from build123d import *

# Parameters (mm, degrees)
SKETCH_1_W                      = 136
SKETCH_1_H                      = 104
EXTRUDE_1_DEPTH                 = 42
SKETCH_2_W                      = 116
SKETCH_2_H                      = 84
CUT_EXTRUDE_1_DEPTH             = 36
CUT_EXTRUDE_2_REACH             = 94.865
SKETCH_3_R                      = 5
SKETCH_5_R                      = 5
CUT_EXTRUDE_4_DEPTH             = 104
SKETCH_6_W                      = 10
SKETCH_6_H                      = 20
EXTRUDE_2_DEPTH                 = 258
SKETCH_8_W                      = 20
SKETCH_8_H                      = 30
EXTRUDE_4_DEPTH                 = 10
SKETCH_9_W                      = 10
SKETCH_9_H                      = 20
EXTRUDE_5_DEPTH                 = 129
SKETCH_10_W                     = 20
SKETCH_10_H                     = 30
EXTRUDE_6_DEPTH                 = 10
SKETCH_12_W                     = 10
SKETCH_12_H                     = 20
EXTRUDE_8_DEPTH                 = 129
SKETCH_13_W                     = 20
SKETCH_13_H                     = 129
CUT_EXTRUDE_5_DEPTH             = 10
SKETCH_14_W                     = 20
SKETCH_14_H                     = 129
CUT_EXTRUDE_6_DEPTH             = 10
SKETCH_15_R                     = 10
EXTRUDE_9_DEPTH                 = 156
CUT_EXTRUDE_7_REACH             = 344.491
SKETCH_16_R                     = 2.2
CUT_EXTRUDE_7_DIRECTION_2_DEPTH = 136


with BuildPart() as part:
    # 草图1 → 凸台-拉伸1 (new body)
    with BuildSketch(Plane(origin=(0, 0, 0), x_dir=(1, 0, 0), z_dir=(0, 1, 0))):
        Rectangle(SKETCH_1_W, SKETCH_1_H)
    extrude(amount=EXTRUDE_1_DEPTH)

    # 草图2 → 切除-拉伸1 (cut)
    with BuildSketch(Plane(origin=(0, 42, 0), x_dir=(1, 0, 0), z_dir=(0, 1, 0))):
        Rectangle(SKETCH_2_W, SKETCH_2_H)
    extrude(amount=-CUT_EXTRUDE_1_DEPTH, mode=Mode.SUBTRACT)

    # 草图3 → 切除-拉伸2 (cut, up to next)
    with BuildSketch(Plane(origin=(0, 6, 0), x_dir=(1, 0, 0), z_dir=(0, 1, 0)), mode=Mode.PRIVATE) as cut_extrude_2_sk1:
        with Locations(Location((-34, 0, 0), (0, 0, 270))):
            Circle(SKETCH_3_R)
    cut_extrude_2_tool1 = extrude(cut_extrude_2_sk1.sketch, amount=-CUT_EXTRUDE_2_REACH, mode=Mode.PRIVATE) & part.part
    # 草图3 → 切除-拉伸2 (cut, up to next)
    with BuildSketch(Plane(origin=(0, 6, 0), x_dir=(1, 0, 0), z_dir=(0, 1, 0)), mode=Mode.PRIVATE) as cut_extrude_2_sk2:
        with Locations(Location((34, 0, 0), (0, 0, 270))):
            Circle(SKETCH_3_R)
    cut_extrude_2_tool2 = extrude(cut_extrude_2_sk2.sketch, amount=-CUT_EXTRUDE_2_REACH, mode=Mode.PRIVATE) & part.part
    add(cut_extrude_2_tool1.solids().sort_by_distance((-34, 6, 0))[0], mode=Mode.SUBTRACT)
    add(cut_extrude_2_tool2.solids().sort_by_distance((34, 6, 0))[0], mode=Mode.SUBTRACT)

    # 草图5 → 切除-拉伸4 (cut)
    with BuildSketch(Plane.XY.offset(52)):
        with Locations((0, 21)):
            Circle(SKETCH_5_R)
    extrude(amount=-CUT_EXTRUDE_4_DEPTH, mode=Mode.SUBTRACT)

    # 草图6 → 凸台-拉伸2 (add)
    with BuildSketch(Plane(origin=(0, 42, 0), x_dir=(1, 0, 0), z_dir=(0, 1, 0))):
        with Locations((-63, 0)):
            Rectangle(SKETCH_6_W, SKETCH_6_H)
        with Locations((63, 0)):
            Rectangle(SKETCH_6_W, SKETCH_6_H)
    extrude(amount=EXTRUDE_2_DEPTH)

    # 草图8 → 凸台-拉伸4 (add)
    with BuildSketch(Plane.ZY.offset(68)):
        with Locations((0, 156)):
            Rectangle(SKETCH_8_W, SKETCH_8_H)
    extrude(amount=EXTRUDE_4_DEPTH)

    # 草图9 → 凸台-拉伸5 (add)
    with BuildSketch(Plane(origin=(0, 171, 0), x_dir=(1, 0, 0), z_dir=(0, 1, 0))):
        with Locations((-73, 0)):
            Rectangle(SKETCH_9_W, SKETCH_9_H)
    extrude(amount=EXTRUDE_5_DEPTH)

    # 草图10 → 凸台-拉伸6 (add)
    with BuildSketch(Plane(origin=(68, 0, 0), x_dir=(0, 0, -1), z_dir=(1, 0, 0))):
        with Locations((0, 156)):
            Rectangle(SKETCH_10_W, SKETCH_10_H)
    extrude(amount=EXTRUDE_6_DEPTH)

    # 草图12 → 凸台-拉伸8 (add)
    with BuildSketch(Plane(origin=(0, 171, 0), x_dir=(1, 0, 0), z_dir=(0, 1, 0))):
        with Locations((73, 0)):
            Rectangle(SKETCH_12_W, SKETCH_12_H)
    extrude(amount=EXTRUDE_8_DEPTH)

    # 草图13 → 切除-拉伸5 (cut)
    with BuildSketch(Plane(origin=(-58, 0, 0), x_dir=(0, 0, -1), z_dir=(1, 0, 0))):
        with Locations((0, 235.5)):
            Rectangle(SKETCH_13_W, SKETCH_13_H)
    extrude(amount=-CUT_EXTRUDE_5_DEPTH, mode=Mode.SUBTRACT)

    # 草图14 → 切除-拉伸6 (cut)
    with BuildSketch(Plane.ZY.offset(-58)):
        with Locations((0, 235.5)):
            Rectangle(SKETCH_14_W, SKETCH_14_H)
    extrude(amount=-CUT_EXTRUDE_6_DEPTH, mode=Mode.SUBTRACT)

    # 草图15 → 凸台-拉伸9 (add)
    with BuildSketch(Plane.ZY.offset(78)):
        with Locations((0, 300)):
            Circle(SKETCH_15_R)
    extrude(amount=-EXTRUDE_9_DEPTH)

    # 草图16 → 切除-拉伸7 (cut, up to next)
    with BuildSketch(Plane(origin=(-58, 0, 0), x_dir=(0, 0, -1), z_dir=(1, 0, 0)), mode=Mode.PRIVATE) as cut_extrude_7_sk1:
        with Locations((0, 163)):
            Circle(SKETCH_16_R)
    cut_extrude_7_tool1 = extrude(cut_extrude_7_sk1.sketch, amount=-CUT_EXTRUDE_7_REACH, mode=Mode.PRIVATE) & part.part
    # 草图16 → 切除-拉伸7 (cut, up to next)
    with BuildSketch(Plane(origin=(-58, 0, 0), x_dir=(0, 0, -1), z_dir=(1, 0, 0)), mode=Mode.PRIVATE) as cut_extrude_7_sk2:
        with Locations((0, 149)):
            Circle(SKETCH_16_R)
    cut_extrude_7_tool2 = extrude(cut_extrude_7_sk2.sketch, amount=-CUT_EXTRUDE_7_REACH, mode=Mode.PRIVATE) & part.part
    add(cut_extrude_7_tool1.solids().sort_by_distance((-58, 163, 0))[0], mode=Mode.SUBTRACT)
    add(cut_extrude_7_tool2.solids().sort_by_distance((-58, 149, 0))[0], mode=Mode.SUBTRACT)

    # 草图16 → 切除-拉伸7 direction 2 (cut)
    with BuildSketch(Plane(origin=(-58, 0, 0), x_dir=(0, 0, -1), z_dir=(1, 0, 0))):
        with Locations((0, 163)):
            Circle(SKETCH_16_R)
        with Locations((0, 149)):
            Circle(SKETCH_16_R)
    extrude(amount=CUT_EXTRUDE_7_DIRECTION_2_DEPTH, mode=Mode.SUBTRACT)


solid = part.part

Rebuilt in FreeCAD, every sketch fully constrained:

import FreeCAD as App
import Part
import Sketcher
Q = App.Units.Quantity


def add_polygon(sketch, points):
    """Adds a closed chain of lines whose ends are joined by coincident constraints."""
    first, n = sketch.GeometryCount, len(points)
    for a, b in zip(points, points[1:] + points[:1]):
        sketch.addGeometry(Part.LineSegment(App.Vector(*a, 0), App.Vector(*b, 0)), False)
    for i in range(n):
        sketch.addConstraint(Sketcher.Constraint("Coincident", first + i, 2, first + (i + 1) % n, 1))

doc = App.newDocument("Part")
params = doc.addObject("Spreadsheet::Sheet", "Params")
for row, (alias, value) in enumerate([
    ("sketch1_width", "136 mm"),
    ("sketch1_height", "104 mm"),
    ("pad1_length", "42 mm"),
    ("sketch2_width", "116 mm"),
    ("sketch2_height", "84 mm"),
    ("pocket1_length", "36 mm"),
    ("sketch3_diameter", "10 mm"),
    ("sketch4_diameter", "10 mm"),
    ("sketch5_diameter", "10 mm"),
    ("pocket4_length", "104 mm"),
    ("sketch6_width", "10 mm"),
    ("sketch6_height", "20 mm"),
    ("pad2_length", "258 mm"),
    ("sketch7_width", "30 mm"),
    ("sketch7_height", "20 mm"),
    ("pad3_length", "10 mm"),
    ("sketch8_width", "10 mm"),
    ("sketch8_height", "20 mm"),
    ("pad4_length", "129 mm"),
    ("sketch9_width", "30 mm"),
    ("sketch9_height", "20 mm"),
    ("pad5_length", "10 mm"),
    ("sketch10_width", "10 mm"),
    ("sketch10_height", "20 mm"),
    ("pad6_length", "129 mm"),
    ("sketch11_width", "129 mm"),
    ("sketch11_height", "20 mm"),
    ("pocket5_length", "10 mm"),
    ("sketch12_width", "129 mm"),
    ("sketch12_height", "20 mm"),
    ("pocket6_length", "10 mm"),
    ("sketch13_diameter", "20 mm"),
    ("pad7_length", "156 mm"),
    ("sketch14_diameter", "4.4 mm"),
    ("sketch15_diameter", "4.4 mm"),
    ("sketch16_diameter", "4.4 mm"),
    ("pocket9_length", "136 mm"),
], start=1):
    params.set(f"A{row}", alias)
    params.set(f"B{row}", "=" + value)
    params.setAlias(f"B{row}", alias)

body = doc.addObject("PartDesign::Body", "Body")

sketch1 = body.newObject("Sketcher::SketchObject", "Sketch")
sketch1.AttachmentSupport = (doc.getObject("XZ_Plane"), [""])
sketch1.MapMode = "FlatFace"
add_polygon(sketch1, [(-68, -52), (-68, 52), (68, 52), (68, -52)])
sketch1.addConstraint([
    Sketcher.Constraint("Vertical", 0),
    Sketcher.Constraint("Horizontal", 1),
    Sketcher.Constraint("Vertical", 2),
    Sketcher.Constraint("Horizontal", 3),
    Sketcher.Constraint("Symmetric", 0, 2, 2, 2, -1, 1),
    Sketcher.Constraint("DistanceX", 1, 1, 1, 2, Q("136 mm")),
    Sketcher.Constraint("DistanceY", 0, 1, 0, 2, Q("104 mm")),
])
sketch1.setExpression("Constraints[9]", "Params.sketch1_width")
sketch1.setExpression("Constraints[10]", "Params.sketch1_height")
pad1 = body.newObject("PartDesign::Pad", "Pad")
pad1.Profile = sketch1
pad1.setExpression("Length", "Params.pad1_length")
pad1.Reversed = True

sketch2 = body.newObject("Sketcher::SketchObject", "Sketch001")
sketch2.AttachmentSupport = (doc.getObject("XZ_Plane"), [""])
sketch2.MapMode = "FlatFace"
sketch2.AttachmentOffset = App.Placement(App.Vector(0, 0, -42), App.Rotation())
add_polygon(sketch2, [(-58, -42), (-58, 42), (58, 42), (58, -42)])
sketch2.addConstraint([
    Sketcher.Constraint("Vertical", 0),
    Sketcher.Constraint("Horizontal", 1),
    Sketcher.Constraint("Vertical", 2),
    Sketcher.Constraint("Horizontal", 3),
    Sketcher.Constraint("Symmetric", 0, 2, 2, 2, -1, 1),
    Sketcher.Constraint("DistanceX", 1, 1, 1, 2, Q("116 mm")),
    Sketcher.Constraint("DistanceY", 0, 1, 0, 2, Q("84 mm")),
])
sketch2.setExpression("Constraints[9]", "Params.sketch2_width")
sketch2.setExpression("Constraints[10]", "Params.sketch2_height")
pocket1 = body.newObject("PartDesign::Pocket", "Pocket")
pocket1.Profile = sketch2
pocket1.setExpression("Length", "Params.pocket1_length")
pocket1.Reversed = True

sketch3 = body.newObject("Sketcher::SketchObject", "Sketch002")
sketch3.AttachmentSupport = (doc.getObject("XZ_Plane"), [""])
sketch3.MapMode = "FlatFace"
sketch3.AttachmentOffset = App.Placement(App.Vector(0, 0, -6), App.Rotation())
sketch3.addGeometry(Part.Circle(App.Vector(-34, 0, 0), App.Vector(0, 0, 1), 5), False)
sketch3.addConstraint([
    Sketcher.Constraint("PointOnObject", 0, 3, -1),
    Sketcher.Constraint("Diameter", 0, Q("10 mm")),
    Sketcher.Constraint("DistanceX", 0, 3, -1, 1, Q("34 mm")),
])
sketch3.setExpression("Constraints[1]", "Params.sketch3_diameter")
pocket2 = body.newObject("PartDesign::Pocket", "Pocket001")
pocket2.Profile = sketch3
pocket2.Type = "UpToFirst"
pocket2.Reversed = True

sketch4 = body.newObject("Sketcher::SketchObject", "Sketch003")
sketch4.AttachmentSupport = (doc.getObject("XZ_Plane"), [""])
sketch4.MapMode = "FlatFace"
sketch4.AttachmentOffset = App.Placement(App.Vector(0, 0, -6), App.Rotation())
sketch4.addGeometry(Part.Circle(App.Vector(34, 0, 0), App.Vector(0, 0, 1), 5), False)
sketch4.addConstraint([
    Sketcher.Constraint("PointOnObject", 0, 3, -1),
    Sketcher.Constraint("Diameter", 0, Q("10 mm")),
    Sketcher.Constraint("DistanceX", -1, 1, 0, 3, Q("34 mm")),
])
sketch4.setExpression("Constraints[1]", "Params.sketch4_diameter")
pocket3 = body.newObject("PartDesign::Pocket", "Pocket002")
pocket3.Profile = sketch4
pocket3.Type = "UpToFirst"
pocket3.Reversed = True

sketch5 = body.newObject("Sketcher::SketchObject", "Sketch004")
sketch5.AttachmentSupport = (doc.getObject("XY_Plane"), [""])
sketch5.MapMode = "FlatFace"
sketch5.AttachmentOffset = App.Placement(App.Vector(0, 0, 52), App.Rotation())
sketch5.addGeometry(Part.Circle(App.Vector(0, 21, 0), App.Vector(0, 0, 1), 5), False)
sketch5.addConstraint([
    Sketcher.Constraint("PointOnObject", 0, 3, -2),
    Sketcher.Constraint("Diameter", 0, Q("10 mm")),
    Sketcher.Constraint("DistanceY", -1, 1, 0, 3, Q("21 mm")),
])
sketch5.setExpression("Constraints[1]", "Params.sketch5_diameter")
pocket4 = body.newObject("PartDesign::Pocket", "Pocket003")
pocket4.Profile = sketch5
pocket4.setExpression("Length", "Params.pocket4_length")

sketch6 = body.newObject("Sketcher::SketchObject", "Sketch005")
sketch6.AttachmentSupport = (doc.getObject("XZ_Plane"), [""])
sketch6.MapMode = "FlatFace"
sketch6.AttachmentOffset = App.Placement(App.Vector(0, 0, -42), App.Rotation())
add_polygon(sketch6, [(-68, -10), (-68, 10), (-58, 10), (-58, -10)])
add_polygon(sketch6, [(58, -10), (58, 10), (68, 10), (68, -10)])
sketch6.addConstraint([
    Sketcher.Constraint("Vertical", 0),
    Sketcher.Constraint("Horizontal", 1),
    Sketcher.Constraint("Vertical", 2),
    Sketcher.Constraint("Horizontal", 3),
    Sketcher.Constraint("Vertical", 4),
    Sketcher.Constraint("Horizontal", 5),
    Sketcher.Constraint("Vertical", 6),
    Sketcher.Constraint("Horizontal", 7),
    Sketcher.Constraint("Symmetric", 2, 2, 4, 2, -1, 1),
    Sketcher.Constraint("Symmetric", 0, 2, 6, 2, -1, 1),
    Sketcher.Constraint("Horizontal", 1, 2, 4, 2),
    Sketcher.Constraint("DistanceX", 1, 1, 1, 2, Q("10 mm")),
    Sketcher.Constraint("DistanceY", 0, 1, 0, 2, Q("20 mm")),
    Sketcher.Constraint("DistanceX", 0, 2, -1, 1, Q("68 mm")),
])
sketch6.setExpression("Constraints[19]", "Params.sketch6_width")
sketch6.setExpression("Constraints[20]", "Params.sketch6_height")
pad2 = body.newObject("PartDesign::Pad", "Pad001")
pad2.Profile = sketch6
pad2.setExpression("Length", "Params.pad2_length")
pad2.Reversed = True

sketch7 = body.newObject("Sketcher::SketchObject", "Sketch006")
sketch7.AttachmentSupport = (doc.getObject("YZ_Plane"), [""])
sketch7.MapMode = "FlatFace"
sketch7.AttachmentOffset = App.Placement(App.Vector(0, 0, -68), App.Rotation())
add_polygon(sketch7, [(171, -10), (141, -10), (141, 10), (171, 10)])
sketch7.addConstraint([
    Sketcher.Constraint("Horizontal", 0),
    Sketcher.Constraint("Vertical", 1),
    Sketcher.Constraint("Horizontal", 2),
    Sketcher.Constraint("Vertical", 3),
    Sketcher.Constraint("DistanceX", 0, 2, 0, 1, Q("30 mm")),
    Sketcher.Constraint("DistanceY", 1, 1, 1, 2, Q("20 mm")),
    Sketcher.Constraint("DistanceX", -1, 1, 0, 2, Q("141 mm")),
    Sketcher.Constraint("DistanceY", 0, 2, -1, 1, Q("10 mm")),
])
sketch7.setExpression("Constraints[8]", "Params.sketch7_width")
sketch7.setExpression("Constraints[9]", "Params.sketch7_height")
pad3 = body.newObject("PartDesign::Pad", "Pad002")
pad3.Profile = sketch7
pad3.setExpression("Length", "Params.pad3_length")
pad3.Reversed = True

sketch8 = body.newObject("Sketcher::SketchObject", "Sketch007")
sketch8.AttachmentSupport = (doc.getObject("XZ_Plane"), [""])
sketch8.MapMode = "FlatFace"
sketch8.AttachmentOffset = App.Placement(App.Vector(0, 0, -171), App.Rotation())
add_polygon(sketch8, [(-78, -10), (-78, 10), (-68, 10), (-68, -10)])
sketch8.addConstraint([
    Sketcher.Constraint("Vertical", 0),
    Sketcher.Constraint("Horizontal", 1),
    Sketcher.Constraint("Vertical", 2),
    Sketcher.Constraint("Horizontal", 3),
    Sketcher.Constraint("DistanceX", 1, 1, 1, 2, Q("10 mm")),
    Sketcher.Constraint("DistanceY", 0, 1, 0, 2, Q("20 mm")),
    Sketcher.Constraint("DistanceX", 0, 2, -1, 1, Q("78 mm")),
    Sketcher.Constraint("DistanceY", -1, 1, 0, 2, Q("10 mm")),
])
sketch8.setExpression("Constraints[8]", "Params.sketch8_width")
sketch8.setExpression("Constraints[9]", "Params.sketch8_height")
pad4 = body.newObject("PartDesign::Pad", "Pad003")
pad4.Profile = sketch8
pad4.setExpression("Length", "Params.pad4_length")
pad4.Reversed = True

sketch9 = body.newObject("Sketcher::SketchObject", "Sketch008")
sketch9.AttachmentSupport = (doc.getObject("YZ_Plane"), [""])
sketch9.MapMode = "FlatFace"
sketch9.AttachmentOffset = App.Placement(App.Vector(0, 0, 68), App.Rotation())
add_polygon(sketch9, [(171, 10), (141, 10), (141, -10), (171, -10)])
sketch9.addConstraint([
    Sketcher.Constraint("Horizontal", 0),
    Sketcher.Constraint("Vertical", 1),
    Sketcher.Constraint("Horizontal", 2),
    Sketcher.Constraint("Vertical", 3),
    Sketcher.Constraint("DistanceX", 0, 2, 0, 1, Q("30 mm")),
    Sketcher.Constraint("DistanceY", 1, 2, 1, 1, Q("20 mm")),
    Sketcher.Constraint("DistanceX", -1, 1, 0, 2, Q("141 mm")),
    Sketcher.Constraint("DistanceY", -1, 1, 0, 2, Q("10 mm")),
])
sketch9.setExpression("Constraints[8]", "Params.sketch9_width")
sketch9.setExpression("Constraints[9]", "Params.sketch9_height")
pad5 = body.newObject("PartDesign::Pad", "Pad004")
pad5.Profile = sketch9
pad5.setExpression("Length", "Params.pad5_length")

sketch10 = body.newObject("Sketcher::SketchObject", "Sketch009")
sketch10.AttachmentSupport = (doc.getObject("XZ_Plane"), [""])
sketch10.MapMode = "FlatFace"
sketch10.AttachmentOffset = App.Placement(App.Vector(0, 0, -171), App.Rotation())
add_polygon(sketch10, [(68, -10), (68, 10), (78, 10), (78, -10)])
sketch10.addConstraint([
    Sketcher.Constraint("Vertical", 0),
    Sketcher.Constraint("Horizontal", 1),
    Sketcher.Constraint("Vertical", 2),
    Sketcher.Constraint("Horizontal", 3),
    Sketcher.Constraint("DistanceX", 1, 1, 1, 2, Q("10 mm")),
    Sketcher.Constraint("DistanceY", 0, 1, 0, 2, Q("20 mm")),
    Sketcher.Constraint("DistanceX", -1, 1, 0, 2, Q("68 mm")),
    Sketcher.Constraint("DistanceY", -1, 1, 0, 2, Q("10 mm")),
])
sketch10.setExpression("Constraints[8]", "Params.sketch10_width")
sketch10.setExpression("Constraints[9]", "Params.sketch10_height")
pad6 = body.newObject("PartDesign::Pad", "Pad005")
pad6.Profile = sketch10
pad6.setExpression("Length", "Params.pad6_length")
pad6.Reversed = True

sketch11 = body.newObject("Sketcher::SketchObject", "Sketch010")
sketch11.AttachmentSupport = (doc.getObject("YZ_Plane"), [""])
sketch11.MapMode = "FlatFace"
sketch11.AttachmentOffset = App.Placement(App.Vector(0, 0, -58), App.Rotation())
add_polygon(sketch11, [(300, 10), (171, 10), (171, -10), (300, -10)])
sketch11.addConstraint([
    Sketcher.Constraint("Horizontal", 0),
    Sketcher.Constraint("Vertical", 1),
    Sketcher.Constraint("Horizontal", 2),
    Sketcher.Constraint("Vertical", 3),
    Sketcher.Constraint("DistanceX", 0, 2, 0, 1, Q("129 mm")),
    Sketcher.Constraint("DistanceY", 1, 2, 1, 1, Q("20 mm")),
    Sketcher.Constraint("DistanceX", -1, 1, 0, 2, Q("171 mm")),
    Sketcher.Constraint("DistanceY", -1, 1, 0, 2, Q("10 mm")),
])
sketch11.setExpression("Constraints[8]", "Params.sketch11_width")
sketch11.setExpression("Constraints[9]", "Params.sketch11_height")
pocket5 = body.newObject("PartDesign::Pocket", "Pocket004")
pocket5.Profile = sketch11
pocket5.setExpression("Length", "Params.pocket5_length")

sketch12 = body.newObject("Sketcher::SketchObject", "Sketch011")
sketch12.AttachmentSupport = (doc.getObject("YZ_Plane"), [""])
sketch12.MapMode = "FlatFace"
sketch12.AttachmentOffset = App.Placement(App.Vector(0, 0, 58), App.Rotation())
add_polygon(sketch12, [(300, -10), (171, -10), (171, 10), (300, 10)])
sketch12.addConstraint([
    Sketcher.Constraint("Horizontal", 0),
    Sketcher.Constraint("Vertical", 1),
    Sketcher.Constraint("Horizontal", 2),
    Sketcher.Constraint("Vertical", 3),
    Sketcher.Constraint("DistanceX", 0, 2, 0, 1, Q("129 mm")),
    Sketcher.Constraint("DistanceY", 1, 1, 1, 2, Q("20 mm")),
    Sketcher.Constraint("DistanceX", -1, 1, 0, 2, Q("171 mm")),
    Sketcher.Constraint("DistanceY", 0, 2, -1, 1, Q("10 mm")),
])
sketch12.setExpression("Constraints[8]", "Params.sketch12_width")
sketch12.setExpression("Constraints[9]", "Params.sketch12_height")
pocket6 = body.newObject("PartDesign::Pocket", "Pocket005")
pocket6.Profile = sketch12
pocket6.setExpression("Length", "Params.pocket6_length")
pocket6.Reversed = True

sketch13 = body.newObject("Sketcher::SketchObject", "Sketch012")
sketch13.AttachmentSupport = (doc.getObject("YZ_Plane"), [""])
sketch13.MapMode = "FlatFace"
sketch13.AttachmentOffset = App.Placement(App.Vector(0, 0, -78), App.Rotation())
sketch13.addGeometry(Part.Circle(App.Vector(300, 0, 0), App.Vector(0, 0, 1), 10), False)
sketch13.addConstraint([
    Sketcher.Constraint("PointOnObject", 0, 3, -1),
    Sketcher.Constraint("Diameter", 0, Q("20 mm")),
    Sketcher.Constraint("DistanceX", -1, 1, 0, 3, Q("300 mm")),
])
sketch13.setExpression("Constraints[1]", "Params.sketch13_diameter")
pad7 = body.newObject("PartDesign::Pad", "Pad006")
pad7.Profile = sketch13
pad7.setExpression("Length", "Params.pad7_length")

sketch14 = body.newObject("Sketcher::SketchObject", "Sketch013")
sketch14.AttachmentSupport = (doc.getObject("YZ_Plane"), [""])
sketch14.MapMode = "FlatFace"
sketch14.AttachmentOffset = App.Placement(App.Vector(0, 0, -58), App.Rotation())
sketch14.addGeometry(Part.Circle(App.Vector(163, 0, 0), App.Vector(0, 0, 1), 2.2), False)
sketch14.addConstraint([
    Sketcher.Constraint("PointOnObject", 0, 3, -1),
    Sketcher.Constraint("Diameter", 0, Q("4.4 mm")),
    Sketcher.Constraint("DistanceX", -1, 1, 0, 3, Q("163 mm")),
])
sketch14.setExpression("Constraints[1]", "Params.sketch14_diameter")
pocket7 = body.newObject("PartDesign::Pocket", "Pocket006")
pocket7.Profile = sketch14
pocket7.Type = "UpToFirst"

sketch15 = body.newObject("Sketcher::SketchObject", "Sketch014")
sketch15.AttachmentSupport = (doc.getObject("YZ_Plane"), [""])
sketch15.MapMode = "FlatFace"
sketch15.AttachmentOffset = App.Placement(App.Vector(0, 0, -58), App.Rotation())
sketch15.addGeometry(Part.Circle(App.Vector(149, 0, 0), App.Vector(0, 0, 1), 2.2), False)
sketch15.addConstraint([
    Sketcher.Constraint("PointOnObject", 0, 3, -1),
    Sketcher.Constraint("Diameter", 0, Q("4.4 mm")),
    Sketcher.Constraint("DistanceX", -1, 1, 0, 3, Q("149 mm")),
])
sketch15.setExpression("Constraints[1]", "Params.sketch15_diameter")
pocket8 = body.newObject("PartDesign::Pocket", "Pocket007")
pocket8.Profile = sketch15
pocket8.Type = "UpToFirst"

sketch16 = body.newObject("Sketcher::SketchObject", "Sketch015")
sketch16.AttachmentSupport = (doc.getObject("YZ_Plane"), [""])
sketch16.MapMode = "FlatFace"
sketch16.AttachmentOffset = App.Placement(App.Vector(0, 0, -58), App.Rotation())
sketch16.addGeometry([
    Part.Circle(App.Vector(163, 0, 0), App.Vector(0, 0, 1), 2.2),
    Part.Circle(App.Vector(149, 0, 0), App.Vector(0, 0, 1), 2.2),
], False)
sketch16.addConstraint([
    Sketcher.Constraint("Equal", 0, 1),
    Sketcher.Constraint("PointOnObject", 0, 3, -1),
    Sketcher.Constraint("PointOnObject", 1, 3, -1),
    Sketcher.Constraint("Diameter", 0, Q("4.4 mm")),
    Sketcher.Constraint("DistanceX", -1, 1, 0, 3, Q("163 mm")),
    Sketcher.Constraint("DistanceX", -1, 1, 1, 3, Q("149 mm")),
])
sketch16.setExpression("Constraints[3]", "Params.sketch16_diameter")
pocket9 = body.newObject("PartDesign::Pocket", "Pocket008")
pocket9.Profile = sketch16
pocket9.setExpression("Length", "Params.pocket9_length")
pocket9.Reversed = True

doc.recompute()
